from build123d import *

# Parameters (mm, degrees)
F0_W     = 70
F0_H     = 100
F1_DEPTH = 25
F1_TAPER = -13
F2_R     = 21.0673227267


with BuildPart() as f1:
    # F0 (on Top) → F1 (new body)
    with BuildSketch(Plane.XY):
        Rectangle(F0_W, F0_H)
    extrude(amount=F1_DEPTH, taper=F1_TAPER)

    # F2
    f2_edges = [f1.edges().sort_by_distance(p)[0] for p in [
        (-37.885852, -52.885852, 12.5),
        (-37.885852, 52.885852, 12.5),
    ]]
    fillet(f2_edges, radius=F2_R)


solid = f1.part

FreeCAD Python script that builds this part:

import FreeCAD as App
import Part
import Sketcher


def edges_at(feature, points):
    """Names of the edges that pass closest to the given points."""
    edges = feature.Shape.Edges
    near = lambda p: min(range(len(edges)), key=lambda i: edges[i].distToShape(Part.Vertex(*p))[0])
    return sorted({f"Edge{near(p) + 1}" for p in points})


def add_polygon(sketch, points):
    """Adds a closed chain of lines whose ends are joined by coincident constraints."""
    first, n = sketch.GeometryCount, len(points)
    for a, b in zip(points, points[1:] + points[:1]):
        sketch.addGeometry(Part.LineSegment(App.Vector(*a, 0), App.Vector(*b, 0)), False)
    for i in range(n):
        sketch.addConstraint(Sketcher.Constraint("Coincident", first + i, 2, first + (i + 1) % n, 1))

doc = App.newDocument("Part")
params = doc.addObject("Spreadsheet::Sheet", "Params")
for row, (alias, value) in enumerate([
    ("sketch1_width", "70 mm"),
    ("sketch1_height", "100 mm"),
    ("pad1_length", "25 mm"),
    ("pad1_taper", "13 deg"),
    ("fillet_radius", "21.067323 mm"),
], start=1):
    params.set(f"A{row}", alias)
    params.set(f"B{row}", "=" + value)
    params.setAlias(f"B{row}", alias)

body = doc.addObject("PartDesign::Body", "Body")

# Sketch on XY plane
sketch1 = body.newObject("Sketcher::SketchObject", "Sketch")
sketch1.AttachmentSupport = (doc.getObject("XY_Plane"), [""])
sketch1.MapMode = "FlatFace"
add_polygon(sketch1, [(-35, 50), (-35, -50), (35, -50), (35, 50)])  # lines 0-3
sketch1.addConstraint([
    Sketcher.Constraint("Vertical", 0),
    Sketcher.Constraint("Horizontal", 1),
    Sketcher.Constraint("Vertical", 2),
    Sketcher.Constraint("Horizontal", 3),
    Sketcher.Constraint("Symmetric", 0, 2, 2, 2, -1, 1),
    Sketcher.Constraint("DistanceX", 1, 1, 1, 2, 70.0),
    Sketcher.Constraint("DistanceY", 0, 2, 0, 1, 100.0),
])
sketch1.setExpression("Constraints[9]", "Params.sketch1_width")
sketch1.setExpression("Constraints[10]", "Params.sketch1_height")
pad1 = body.newObject("PartDesign::Pad", "Pad")
pad1.Profile = sketch1
pad1.setExpression("Length", "Params.pad1_length")
pad1.setExpression("TaperAngle", "Params.pad1_taper")
doc.recompute()

fillet = body.newObject("PartDesign::Fillet", "Fillet")
fillet.Base = (pad1, edges_at(pad1, [(-37.886, -52.886, 12.5), (-37.886, 52.886, 12.5)]))
fillet.setExpression("Radius", "Params.fillet_radius")

doc.recompute()
